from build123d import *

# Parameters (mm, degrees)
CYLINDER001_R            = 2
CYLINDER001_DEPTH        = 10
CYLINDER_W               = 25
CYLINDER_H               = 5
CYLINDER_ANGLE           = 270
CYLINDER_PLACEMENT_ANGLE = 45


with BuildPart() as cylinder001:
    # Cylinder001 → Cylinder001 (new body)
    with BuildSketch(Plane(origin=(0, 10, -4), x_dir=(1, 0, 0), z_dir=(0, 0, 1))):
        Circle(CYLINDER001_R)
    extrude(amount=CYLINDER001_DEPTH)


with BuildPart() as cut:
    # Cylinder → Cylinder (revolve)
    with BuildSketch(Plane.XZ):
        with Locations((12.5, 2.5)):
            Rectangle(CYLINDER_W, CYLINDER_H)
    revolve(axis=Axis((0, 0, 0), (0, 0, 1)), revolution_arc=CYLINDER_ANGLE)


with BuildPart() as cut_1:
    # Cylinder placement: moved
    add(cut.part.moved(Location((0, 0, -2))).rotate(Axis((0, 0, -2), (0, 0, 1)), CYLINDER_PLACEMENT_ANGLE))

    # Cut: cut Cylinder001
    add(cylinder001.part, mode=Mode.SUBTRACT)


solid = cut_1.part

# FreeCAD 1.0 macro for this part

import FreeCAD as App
import Part
import Sketcher


def add_polygon(sketch, points):
    """Adds a closed chain of lines whose ends are joined by coincident constraints."""
    first, n = sketch.GeometryCount, len(points)
    for a, b in zip(points, points[1:] + points[:1]):
        sketch.addGeometry(Part.LineSegment(App.Vector(*a, 0), App.Vector(*b, 0)), False)
    for i in range(n):
        sketch.addConstraint(Sketcher.Constraint("Coincident", first + i, 2, first + (i + 1) % n, 1))

doc = App.newDocument("Part")
body = doc.addObject("PartDesign::Body", "Body")

# Sketch on XY plane
sketch1 = doc.addObject("Sketcher::SketchObject", "Sketch")
body.addObject(sketch1)
sketch1.AttachmentSupport = (doc.XY_Plane, [""])
sketch1.MapMode = "FlatFace"
sketch1.AttachmentOffset = App.Placement(App.Vector(0, 0, -4), App.Rotation())
sketch1.addGeometry(Part.Circle(App.Vector(0, 10, 0), App.Vector(0, 0, 1), 2), False)
sketch1.addConstraint([
    Sketcher.Constraint("PointOnObject", 0, 3, -2),
    Sketcher.Constraint("Diameter", 0, 4.0),
    Sketcher.Constraint("DistanceY", -1, 1, 0, 3, 10.0),
])
pad1 = doc.addObject("PartDesign::Pad", "Pad")
body.addObject(pad1)
pad1.Profile = sketch1
pad1.Length = 10
body2 = doc.addObject("PartDesign::Body", "Body001")

# Sketch on XZ plane
sketch2 = doc.addObject("Sketcher::SketchObject", "Sketch001")
body2.addObject(sketch2)
sketch2.AttachmentSupport = (doc.getObject("XZ_Plane001"), [""])
sketch2.MapMode = "FlatFace"
add_polygon(sketch2, [(0, 5), (0, 0), (25, 0), (25, 5)])  # lines 0-3
sketch2.addConstraint([
    Sketcher.Constraint("Vertical", 0),
    Sketcher.Constraint("Horizontal", 1),
    Sketcher.Constraint("Vertical", 2),
    Sketcher.Constraint("Horizontal", 3),
    Sketcher.Constraint("Coincident", 0, 2, -1, 1),
    Sketcher.Constraint("DistanceX", 1, 1, 1, 2, 25.0),
    Sketcher.Constraint("DistanceY", 0, 2, 0, 1, 5.0),
])
revolution = doc.addObject("PartDesign::Revolution", "Revolution")
body2.addObject(revolution)
revolution.Profile = sketch2
revolution.ReferenceAxis = (sketch2, ["V_Axis"])
revolution.Angle = 270
body3 = doc.addObject("PartDesign::Body", "Body002")
doc.recompute()

body2.Placement = App.Placement(App.Vector(0, 0, -2), App.Rotation(App.Vector(0, 0, 1), 45))
boolean = doc.addObject("PartDesign::Boolean", "Boolean")
body3.addObject(boolean)
boolean.Type = "Fuse"
boolean.addObjects([body2])
doc.recompute()

boolean2 = doc.addObject("PartDesign::Boolean", "Boolean001")
body3.addObject(boolean2)
boolean2.Type = "Cut"
boolean2.addObjects([body])

doc.recompute()
